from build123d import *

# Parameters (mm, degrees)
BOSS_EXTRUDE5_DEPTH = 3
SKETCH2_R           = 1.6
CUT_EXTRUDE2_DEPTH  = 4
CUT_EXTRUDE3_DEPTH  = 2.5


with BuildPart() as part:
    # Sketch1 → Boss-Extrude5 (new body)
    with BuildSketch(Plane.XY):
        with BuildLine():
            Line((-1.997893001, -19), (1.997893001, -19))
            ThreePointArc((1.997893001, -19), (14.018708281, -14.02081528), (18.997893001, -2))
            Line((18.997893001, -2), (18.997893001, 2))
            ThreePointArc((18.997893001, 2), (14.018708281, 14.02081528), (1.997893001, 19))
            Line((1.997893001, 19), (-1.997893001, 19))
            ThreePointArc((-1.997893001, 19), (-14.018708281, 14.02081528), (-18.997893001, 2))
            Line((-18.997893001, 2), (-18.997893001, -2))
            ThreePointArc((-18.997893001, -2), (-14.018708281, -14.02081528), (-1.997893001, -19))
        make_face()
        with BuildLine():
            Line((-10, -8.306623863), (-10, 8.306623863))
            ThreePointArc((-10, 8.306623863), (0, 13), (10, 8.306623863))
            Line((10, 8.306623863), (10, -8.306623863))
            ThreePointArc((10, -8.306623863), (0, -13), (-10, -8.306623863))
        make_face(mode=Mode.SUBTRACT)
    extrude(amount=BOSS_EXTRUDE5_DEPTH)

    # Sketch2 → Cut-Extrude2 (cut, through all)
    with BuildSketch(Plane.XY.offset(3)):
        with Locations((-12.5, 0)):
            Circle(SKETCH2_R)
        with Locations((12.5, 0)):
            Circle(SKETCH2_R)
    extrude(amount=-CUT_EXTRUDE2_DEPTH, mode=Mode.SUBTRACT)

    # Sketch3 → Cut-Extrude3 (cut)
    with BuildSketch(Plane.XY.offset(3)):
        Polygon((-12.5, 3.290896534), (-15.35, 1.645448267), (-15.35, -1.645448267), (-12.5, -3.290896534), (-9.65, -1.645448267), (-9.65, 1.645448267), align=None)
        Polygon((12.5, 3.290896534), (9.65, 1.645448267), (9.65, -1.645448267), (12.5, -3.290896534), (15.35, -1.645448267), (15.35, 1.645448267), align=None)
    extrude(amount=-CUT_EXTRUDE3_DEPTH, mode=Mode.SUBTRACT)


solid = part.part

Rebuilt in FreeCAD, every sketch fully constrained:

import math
import FreeCAD as App
import Part
import Sketcher

V = App.Vector
Q = App.Units.Quantity


def add_polygon(sketch, points):
    """Adds a closed chain of lines whose ends are joined by coincident constraints."""
    first, n = sketch.GeometryCount, len(points)
    for a, b in zip(points, points[1:] + points[:1]):
        sketch.addGeometry(Part.LineSegment(App.Vector(*a, 0), App.Vector(*b, 0)), False)
    for i in range(n):
        sketch.addConstraint(Sketcher.Constraint("Coincident", first + i, 2, first + (i + 1) % n, 1))

doc = App.newDocument("Part")
body = doc.addObject("PartDesign::Body", "Body")

sketch1 = body.newObject("Sketcher::SketchObject", "Sketch")
sketch1.AttachmentSupport = (doc.getObject("XY_Plane"), [""])
sketch1.MapMode = "FlatFace"
sketch1.addGeometry(Part.LineSegment(V(-2, -19, 0), V(2, -19, 0)), False)
sketch1.addGeometry(Part.ArcOfCircle(Part.Circle(V(2, -2, 0), V(0, 0, 1), 17), math.radians(-90), math.radians(0)), False)
sketch1.addGeometry(Part.LineSegment(V(19, -2, 0), V(19, 2, 0)), False)
sketch1.addGeometry(Part.ArcOfCircle(Part.Circle(V(2, 2, 0), V(0, 0, 1), 17), math.radians(0), math.radians(90)), False)
sketch1.addGeometry(Part.LineSegment(V(2, 19, 0), V(-2, 19, 0)), False)
sketch1.addGeometry(Part.ArcOfCircle(Part.Circle(V(-2, 2, 0), V(0, 0, 1), 17), math.radians(90), math.radians(180)), False)
sketch1.addGeometry(Part.LineSegment(V(-19, 2, 0), V(-19, -2, 0)), False)
sketch1.addGeometry(Part.ArcOfCircle(Part.Circle(V(-2, -2, 0), V(0, 0, 1), 17), math.radians(-180), math.radians(-90)), False)
sketch1.addGeometry(Part.ArcOfCircle(Part.Circle(V(0, 0, 0), V(0, 0, 1), 13), math.radians(-140), math.radians(-40)), False)
sketch1.addGeometry(Part.LineSegment(V(-10, -8.3, 0), V(-10, 8.3, 0)), False)
sketch1.addGeometry(Part.ArcOfCircle(Part.Circle(V(0, 0, 0), V(0, 0, 1), 13), math.radians(40), math.radians(140)), False)
sketch1.addGeometry(Part.LineSegment(V(10, 8.3, 0), V(10, -8.3, 0)), False)
sketch1.addConstraint(Sketcher.Constraint("Tangent", 0, 2, 1, 1))
sketch1.addConstraint(Sketcher.Constraint("Tangent", 1, 2, 2, 1))
sketch1.addConstraint(Sketcher.Constraint("Tangent", 2, 2, 3, 1))
sketch1.addConstraint(Sketcher.Constraint("Tangent", 3, 2, 4, 1))
sketch1.addConstraint(Sketcher.Constraint("Tangent", 4, 2, 5, 1))
sketch1.addConstraint(Sketcher.Constraint("Tangent", 5, 2, 6, 1))
sketch1.addConstraint(Sketcher.Constraint("Tangent", 6, 2, 7, 1))
sketch1.addConstraint(Sketcher.Constraint("Tangent", 7, 2, 0, 1))
sketch1.addConstraint(Sketcher.Constraint("Coincident", 8, 1, 9, 1))
sketch1.addConstraint(Sketcher.Constraint("Coincident", 9, 2, 10, 2))
sketch1.addConstraint(Sketcher.Constraint("Coincident", 10, 1, 11, 1))
sketch1.addConstraint(Sketcher.Constraint("Coincident", 11, 2, 8, 2))
sketch1.addConstraint(Sketcher.Constraint("Horizontal", 0))
sketch1.addConstraint(Sketcher.Constraint("Vertical", 2))
sketch1.addConstraint(Sketcher.Constraint("Horizontal", 4))
sketch1.addConstraint(Sketcher.Constraint("Vertical", 6))
sketch1.addConstraint(Sketcher.Constraint("Vertical", 9))
sketch1.addConstraint(Sketcher.Constraint("Vertical", 11))
sketch1.addConstraint(Sketcher.Constraint("Coincident", 8, 3, -1, 1))
sketch1.addConstraint(Sketcher.Constraint("Coincident", 10, 3, -1, 1))
sketch1.addConstraint(Sketcher.Constraint("Equal", 1, 3))
sketch1.addConstraint(Sketcher.Constraint("Equal", 3, 5))
sketch1.addConstraint(Sketcher.Constraint("Equal", 5, 7))
sketch1.addConstraint(Sketcher.Constraint("Equal", 8, 10))
sketch1.addConstraint(Sketcher.Constraint("Symmetric", 1, 3, 5, 3, -1, 1))
sketch1.addConstraint(Sketcher.Constraint("Horizontal", 9, 2, 10, 1))
sketch1.addConstraint(Sketcher.Constraint("Radius", 1, Q("17 mm")))
sketch1.addConstraint(Sketcher.Constraint("Radius", 8, Q("13 mm")))
sketch1.addConstraint(Sketcher.Constraint("DistanceY", 2, 1, 2, 2, Q("4 mm")))
sketch1.addConstraint(Sketcher.Constraint("DistanceX", 8, 1, -1, 1, Q("10 mm")))
sketch1.addConstraint(Sketcher.Constraint("DistanceX", 0, 1, 0, 2, Q("3.995786 mm")))
pad1 = body.newObject("PartDesign::Pad", "Pad")
pad1.Profile = sketch1
pad1.Length = 3

sketch2 = body.newObject("Sketcher::SketchObject", "Sketch001")
sketch2.AttachmentSupport = (doc.getObject("XY_Plane"), [""])
sketch2.MapMode = "FlatFace"
sketch2.AttachmentOffset = App.Placement(V(0, 0, 3), App.Rotation())
sketch2.addGeometry(Part.Circle(V(-12.5, 0, 0), V(0, 0, 1), 1.6), False)
sketch2.addGeometry(Part.Circle(V(12.5, 0, 0), V(0, 0, 1), 1.6), False)
sketch2.addConstraint(Sketcher.Constraint("Equal", 0, 1))
sketch2.addConstraint(Sketcher.Constraint("Symmetric", 0, 3, 1, 3, -1, 1))
sketch2.addConstraint(Sketcher.Constraint("PointOnObject", 0, 3, -1))
sketch2.addConstraint(Sketcher.Constraint("Diameter", 0, Q("3.2 mm")))
sketch2.addConstraint(Sketcher.Constraint("DistanceX", 0, 3, 1, 3, Q("25 mm")))
pocket1 = body.newObject("PartDesign::Pocket", "Pocket")
pocket1.Profile = sketch2
pocket1.Type = "ThroughAll"

sketch3 = body.newObject("Sketcher::SketchObject", "Sketch002")
sketch3.AttachmentSupport = (doc.getObject("XY_Plane"), [""])
sketch3.MapMode = "FlatFace"
sketch3.AttachmentOffset = App.Placement(V(0, 0, 3), App.Rotation())
add_polygon(sketch3, [(-12.5, 3.3), (-15.3, 1.6), (-15.3, -1.6), (-12.5, -3.3), (-9.7, -1.6), (-9.7, 1.6)])
add_polygon(sketch3, [(12.5, 3.3), (9.7, 1.6), (9.7, -1.6), (12.5, -3.3), (15.3, -1.6), (15.3, 1.6)])
sketch3.addConstraint(Sketcher.Constraint("Vertical", 1))
sketch3.addConstraint(Sketcher.Constraint("Vertical", 4))
sketch3.addConstraint(Sketcher.Constraint("Vertical", 7))
sketch3.addConstraint(Sketcher.Constraint("Vertical", 10))
sketch3.addConstraint(Sketcher.Constraint("Symmetric", 3, 2, 6, 2, -1, 1))
sketch3.addConstraint(Sketcher.Constraint("Symmetric", 5, 2, 8, 2, -1, 1))
sketch3.addConstraint(Sketcher.Constraint("Symmetric", 0, 2, 9, 2, -1, 1))
sketch3.addConstraint(Sketcher.Constraint("Symmetric", 2, 2, 11, 2, -1, 1))
sketch3.addConstraint(Sketcher.Constraint("Symmetric", 2, 2, 8, 2, -2))
sketch3.addConstraint(Sketcher.Constraint("Parallel", 0, 3))
sketch3.addConstraint(Sketcher.Constraint("Parallel", 2, 5))
sketch3.addConstraint(Sketcher.Constraint("Parallel", 5, 8))
sketch3.addConstraint(Sketcher.Constraint("Parallel", 8, 11))
sketch3.addConstraint(Sketcher.Constraint("Horizontal", 1, 2, 3, 2))
sketch3.addConstraint(Sketcher.Constraint("Horizontal", 0, 2, 4, 2))
sketch3.addConstraint(Sketcher.Constraint("Angle", 0, Q("-150 deg")))
sketch3.addConstraint(Sketcher.Constraint("DistanceX", 0, 2, 6, 2, Q("25 mm")))
sketch3.addConstraint(Sketcher.Constraint("DistanceX", 1, 2, 3, 2, Q("5.7 mm")))
sketch3.addConstraint(Sketcher.Constraint("DistanceY", 1, 2, 1, 1, Q("3.290897 mm")))
pocket2 = body.newObject("PartDesign::Pocket", "Pocket001")
pocket2.Profile = sketch3
pocket2.Length = 2.5

doc.recompute()
